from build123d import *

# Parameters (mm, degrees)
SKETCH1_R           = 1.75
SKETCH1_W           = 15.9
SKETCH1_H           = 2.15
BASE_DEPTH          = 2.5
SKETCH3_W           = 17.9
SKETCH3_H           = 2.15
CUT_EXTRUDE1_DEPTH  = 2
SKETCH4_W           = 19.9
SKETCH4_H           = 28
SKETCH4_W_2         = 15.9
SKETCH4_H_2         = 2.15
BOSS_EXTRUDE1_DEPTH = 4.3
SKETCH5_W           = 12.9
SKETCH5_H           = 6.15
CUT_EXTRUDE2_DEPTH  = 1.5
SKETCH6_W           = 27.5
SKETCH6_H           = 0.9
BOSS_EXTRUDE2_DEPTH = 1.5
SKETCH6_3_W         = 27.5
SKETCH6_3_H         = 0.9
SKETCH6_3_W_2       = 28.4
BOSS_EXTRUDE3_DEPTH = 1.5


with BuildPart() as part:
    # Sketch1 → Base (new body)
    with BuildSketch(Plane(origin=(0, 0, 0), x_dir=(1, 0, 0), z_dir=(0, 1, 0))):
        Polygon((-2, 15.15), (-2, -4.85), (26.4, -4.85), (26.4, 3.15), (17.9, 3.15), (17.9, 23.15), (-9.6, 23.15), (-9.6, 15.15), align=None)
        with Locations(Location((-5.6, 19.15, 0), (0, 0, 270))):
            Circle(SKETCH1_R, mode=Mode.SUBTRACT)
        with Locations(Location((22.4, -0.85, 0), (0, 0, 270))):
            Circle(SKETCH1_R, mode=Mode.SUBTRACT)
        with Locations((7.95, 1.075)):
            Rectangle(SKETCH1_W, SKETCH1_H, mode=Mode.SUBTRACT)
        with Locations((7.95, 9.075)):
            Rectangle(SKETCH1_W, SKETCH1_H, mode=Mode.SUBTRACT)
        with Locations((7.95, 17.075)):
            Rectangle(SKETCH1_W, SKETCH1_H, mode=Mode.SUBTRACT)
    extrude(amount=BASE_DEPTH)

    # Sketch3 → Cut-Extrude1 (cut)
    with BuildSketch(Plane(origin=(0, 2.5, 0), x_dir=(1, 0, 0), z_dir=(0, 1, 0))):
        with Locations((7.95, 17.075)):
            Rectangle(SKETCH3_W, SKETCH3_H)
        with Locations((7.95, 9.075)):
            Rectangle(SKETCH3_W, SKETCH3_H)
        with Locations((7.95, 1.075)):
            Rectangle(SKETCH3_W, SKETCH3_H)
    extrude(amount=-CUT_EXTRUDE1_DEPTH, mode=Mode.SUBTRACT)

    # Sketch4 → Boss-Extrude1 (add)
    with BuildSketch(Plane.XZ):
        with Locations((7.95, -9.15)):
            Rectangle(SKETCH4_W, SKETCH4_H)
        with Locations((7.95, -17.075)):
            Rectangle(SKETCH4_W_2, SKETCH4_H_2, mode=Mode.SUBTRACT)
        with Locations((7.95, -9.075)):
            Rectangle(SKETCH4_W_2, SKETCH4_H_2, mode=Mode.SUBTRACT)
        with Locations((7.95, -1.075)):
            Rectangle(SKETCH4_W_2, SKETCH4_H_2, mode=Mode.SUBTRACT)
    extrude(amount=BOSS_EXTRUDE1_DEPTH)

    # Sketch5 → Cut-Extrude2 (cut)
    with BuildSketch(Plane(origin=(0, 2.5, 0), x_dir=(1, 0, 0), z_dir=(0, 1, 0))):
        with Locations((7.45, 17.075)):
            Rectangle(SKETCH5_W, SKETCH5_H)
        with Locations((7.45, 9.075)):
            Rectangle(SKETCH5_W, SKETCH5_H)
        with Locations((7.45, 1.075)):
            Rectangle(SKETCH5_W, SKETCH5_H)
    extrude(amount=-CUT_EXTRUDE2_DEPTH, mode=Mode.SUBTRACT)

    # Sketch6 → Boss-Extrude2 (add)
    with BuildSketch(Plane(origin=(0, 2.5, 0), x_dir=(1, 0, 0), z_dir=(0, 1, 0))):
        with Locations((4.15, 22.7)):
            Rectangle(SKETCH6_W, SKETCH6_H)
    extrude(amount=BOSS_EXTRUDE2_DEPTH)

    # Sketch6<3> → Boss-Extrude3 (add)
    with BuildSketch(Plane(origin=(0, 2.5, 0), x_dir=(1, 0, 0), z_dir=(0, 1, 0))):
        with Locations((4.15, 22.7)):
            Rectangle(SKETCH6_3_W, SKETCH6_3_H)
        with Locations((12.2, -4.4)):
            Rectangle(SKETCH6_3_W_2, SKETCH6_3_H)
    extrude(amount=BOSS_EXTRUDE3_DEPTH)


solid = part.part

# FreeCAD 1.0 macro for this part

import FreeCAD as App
import Part
import Sketcher
Q = App.Units.Quantity


def add_polygon(sketch, points):
    """Adds a closed chain of lines whose ends are joined by coincident constraints."""
    first, n = sketch.GeometryCount, len(points)
    for a, b in zip(points, points[1:] + points[:1]):
        sketch.addGeometry(Part.LineSegment(App.Vector(*a, 0), App.Vector(*b, 0)), False)
    for i in range(n):
        sketch.addConstraint(Sketcher.Constraint("Coincident", first + i, 2, first + (i + 1) % n, 1))

doc = App.newDocument("Part")
params = doc.addObject("Spreadsheet::Sheet", "Params")
for row, (alias, value) in enumerate([
    ("sketch1_diameter", "3.5 mm"),
    ("sketch1_height", "20 mm"),
    ("sketch1_height2", "8 mm"),
    ("sketch1_width", "28.4 mm"),
    ("sketch1_width2", "8.5 mm"),
    ("pad1_length", "2.5 mm"),
    ("sketch2_width", "17.9 mm"),
    ("sketch2_height", "2.15 mm"),
    ("pocket1_length", "2 mm"),
    ("sketch3_height", "28 mm"),
    ("sketch3_width", "19.9 mm"),
    ("sketch3_width2", "15.9 mm"),
    ("sketch3_height2", "2.15 mm"),
    ("pad2_length", "4.3 mm"),
    ("sketch4_width", "12.9 mm"),
    ("sketch4_height", "6.15 mm"),
    ("pocket2_length", "1.5 mm"),
    ("sketch5_width", "27.5 mm"),
    ("sketch5_height", "0.9 mm"),
    ("pad3_length", "1.5 mm"),
    ("sketch6_width", "27.5 mm"),
    ("sketch6_width2", "28.4 mm"),
    ("sketch6_height", "0.9 mm"),
    ("pad4_length", "1.5 mm"),
], start=1):
    params.set(f"A{row}", alias)
    params.set(f"B{row}", "=" + value)
    params.setAlias(f"B{row}", alias)

body = doc.addObject("PartDesign::Body", "Body")

# Sketch on XZ plane
sketch1 = doc.addObject("Sketcher::SketchObject", "Sketch")
body.addObject(sketch1)
sketch1.AttachmentSupport = (doc.XZ_Plane, [""])
sketch1.MapMode = "FlatFace"
add_polygon(sketch1, [(-2, -15.15), (-2, 4.85), (26.4, 4.85), (26.4, -3.15), (17.9, -3.15), (17.9, -23.15), (-9.6, -23.15), (-9.6, -15.15)])  # lines 0-7
add_polygon(sketch1, [(15.9, 0), (0, 0), (0, -2.15), (15.9, -2.15)])  # lines 8-11
add_polygon(sketch1, [(15.9, -8), (0, -8), (0, -10.15), (15.9, -10.15)])  # lines 12-15
sketch1.addGeometry(Part.Circle(App.Vector(22.4, 0.85, 0), App.Vector(0, 0, 1), 1.75), False)  # 16
sketch1.addGeometry(Part.Circle(App.Vector(-5.6, -19.15, 0), App.Vector(0, 0, 1), 1.75), False)  # 17
add_polygon(sketch1, [(15.9, -16), (0, -16), (0, -18.15), (15.9, -18.15)])  # lines 18-21
sketch1.addConstraint([
    Sketcher.Constraint("Vertical", 0),
    Sketcher.Constraint("Horizontal", 1),
    Sketcher.Constraint("Vertical", 2),
    Sketcher.Constraint("Horizontal", 3),
    Sketcher.Constraint("Vertical", 4),
    Sketcher.Constraint("Horizontal", 5),
    Sketcher.Constraint("Vertical", 6),
    Sketcher.Constraint("Horizontal", 7),
    Sketcher.Constraint("Horizontal", 8),
    Sketcher.Constraint("Vertical", 9),
    Sketcher.Constraint("Horizontal", 10),
    Sketcher.Constraint("Vertical", 11),
    Sketcher.Constraint("Horizontal", 12),
    Sketcher.Constraint("Vertical", 13),
    Sketcher.Constraint("Horizontal", 14),
    Sketcher.Constraint("Vertical", 15),
    Sketcher.Constraint("Horizontal", 18),
    Sketcher.Constraint("Vertical", 19),
    Sketcher.Constraint("Horizontal", 20),
    Sketcher.Constraint("Vertical", 21),
    Sketcher.Constraint("Coincident", 8, 2, -1, 1),
    Sketcher.Constraint("Equal", 16, 17),
    Sketcher.Constraint("PointOnObject", 12, 2, -2),
    Sketcher.Constraint("PointOnObject", 18, 2, -2),
    Sketcher.Constraint("Vertical", 11, 2, 14, 2),
    Sketcher.Constraint("Vertical", 15, 2, 20, 2),
    Sketcher.Constraint("Equal", 0, 4),
    Sketcher.Constraint("Equal", 11, 13),
    Sketcher.Constraint("Equal", 15, 19),
    Sketcher.Constraint("Diameter", 16, Q("3.5 mm")),
    Sketcher.Constraint("DistanceY", 0, 1, 0, 2, Q("20 mm")),
    Sketcher.Constraint("DistanceY", 2, 2, 2, 1, Q("8 mm")),
    Sketcher.Constraint("DistanceX", 1, 1, 1, 2, Q("28.4 mm")),
    Sketcher.Constraint("DistanceX", 3, 2, 3, 1, Q("8.5 mm")),
    Sketcher.Constraint("DistanceX", 5, 2, 5, 1, Q("27.5 mm")),
    Sketcher.Constraint("DistanceX", 8, 2, 8, 1, Q("15.9 mm")),
    Sketcher.Constraint("DistanceX", 0, 2, -1, 1, Q("2 mm")),
    Sketcher.Constraint("DistanceY", 12, 2, -1, 1, Q("8 mm")),
    Sketcher.Constraint("DistanceY", 18, 2, -1, 1, Q("16 mm")),
    Sketcher.Constraint("DistanceX", 17, 3, 16, 3, Q("28 mm")),
    Sketcher.Constraint("DistanceY", 17, 3, 16, 3, Q("20 mm")),
    Sketcher.Constraint("DistanceY", 17, 3, 0, 2, Q("24 mm")),
    Sketcher.Constraint("DistanceX", 16, 3, 1, 2, Q("4 mm")),
    Sketcher.Constraint("DistanceY", 9, 2, 0, 2, Q("7 mm")),
    Sketcher.Constraint("DistanceY", 9, 2, 9, 1, Q("2.15 mm")),
])
sketch1.setExpression("Constraints[49]", "Params.sketch1_diameter")
sketch1.setExpression("Constraints[50]", "Params.sketch1_height")
sketch1.setExpression("Constraints[51]", "Params.sketch1_height2")
sketch1.setExpression("Constraints[52]", "Params.sketch1_width")
sketch1.setExpression("Constraints[53]", "Params.sketch1_width2")
pad1 = doc.addObject("PartDesign::Pad", "Pad")
body.addObject(pad1)
pad1.Profile = sketch1
pad1.setExpression("Length", "Params.pad1_length")
pad1.Reversed = True

# Sketch on XZ plane
sketch2 = doc.addObject("Sketcher::SketchObject", "Sketch001")
body.addObject(sketch2)
sketch2.AttachmentSupport = (doc.XZ_Plane, [""])
sketch2.MapMode = "FlatFace"
sketch2.AttachmentOffset = App.Placement(App.Vector(0, 0, -2.5), App.Rotation())
add_polygon(sketch2, [(-1, -18.15), (-1, -16), (16.9, -16), (16.9, -18.15)])  # lines 0-3
add_polygon(sketch2, [(-1, -10.15), (-1, -8), (16.9, -8), (16.9, -10.15)])  # lines 4-7
add_polygon(sketch2, [(-1, -2.15), (-1, 0), (16.9, 0), (16.9, -2.15)])  # lines 8-11
sketch2.addConstraint([
    Sketcher.Constraint("Vertical", 0),
    Sketcher.Constraint("Horizontal", 1),
    Sketcher.Constraint("Vertical", 2),
    Sketcher.Constraint("Horizontal", 3),
    Sketcher.Constraint("Vertical", 4),
    Sketcher.Constraint("Horizontal", 5),
    Sketcher.Constraint("Vertical", 6),
    Sketcher.Constraint("Horizontal", 7),
    Sketcher.Constraint("Vertical", 8),
    Sketcher.Constraint("Horizontal", 9),
    Sketcher.Constraint("Vertical", 10),
    Sketcher.Constraint("Horizontal", 11),
    Sketcher.Constraint("PointOnObject", 8, 2, -1),
    Sketcher.Constraint("Vertical", 3, 2, 4, 2),
    Sketcher.Constraint("Vertical", 2, 2, 5, 2),
    Sketcher.Constraint("Vertical", 7, 2, 8, 2),
    Sketcher.Constraint("Vertical", 6, 2, 9, 2),
    Sketcher.Constraint("Equal", 2, 4),
    Sketcher.Constraint("Equal", 6, 8),
    Sketcher.Constraint("DistanceX", 1, 1, 1, 2, Q("17.9 mm")),
    Sketcher.Constraint("DistanceX", 0, 2, -1, 1, Q("1 mm")),
    Sketcher.Constraint("DistanceY", 0, 2, -1, 1, Q("16 mm")),
    Sketcher.Constraint("DistanceY", 4, 2, -1, 1, Q("8 mm")),
    Sketcher.Constraint("DistanceY", 0, 1, 0, 2, Q("2.15 mm")),
])
sketch2.setExpression("Constraints[31]", "Params.sketch2_width")
sketch2.setExpression("Constraints[35]", "Params.sketch2_height")
pocket1 = doc.addObject("PartDesign::Pocket", "Pocket")
body.addObject(pocket1)
pocket1.Profile = sketch2
pocket1.setExpression("Length", "Params.pocket1_length")
pocket1.Reversed = True

# Sketch on XZ plane
sketch3 = doc.addObject("Sketcher::SketchObject", "Sketch002")
body.addObject(sketch3)
sketch3.AttachmentSupport = (doc.XZ_Plane, [""])
sketch3.MapMode = "FlatFace"
add_polygon(sketch3, [(-2, 4.85), (-2, -23.15), (17.9, -23.15), (17.9, 4.85)])  # lines 0-3
add_polygon(sketch3, [(15.9, -18.15), (0, -18.15), (0, -16), (15.9, -16)])  # lines 4-7
add_polygon(sketch3, [(15.9, -10.15), (0, -10.15), (0, -8), (15.9, -8)])  # lines 8-11
add_polygon(sketch3, [(15.9, -2.15), (0, -2.15), (0, 0), (15.9, 0)])  # lines 12-15
sketch3.addConstraint([
    Sketcher.Constraint("Vertical", 0),
    Sketcher.Constraint("Horizontal", 1),
    Sketcher.Constraint("Vertical", 2),
    Sketcher.Constraint("Horizontal", 3),
    Sketcher.Constraint("Horizontal", 4),
    Sketcher.Constraint("Vertical", 5),
    Sketcher.Constraint("Horizontal", 6),
    Sketcher.Constraint("Vertical", 7),
    Sketcher.Constraint("Horizontal", 8),
    Sketcher.Constraint("Vertical", 9),
    Sketcher.Constraint("Horizontal", 10),
    Sketcher.Constraint("Vertical", 11),
    Sketcher.Constraint("Horizontal", 12),
    Sketcher.Constraint("Vertical", 13),
    Sketcher.Constraint("Horizontal", 14),
    Sketcher.Constraint("Vertical", 15),
    Sketcher.Constraint("Coincident", 13, 2, -1, 1),
    Sketcher.Constraint("PointOnObject", 4, 2, -2),
    Sketcher.Constraint("PointOnObject", 8, 2, -2),
    Sketcher.Constraint("Vertical", 7, 2, 10, 2),
    Sketcher.Constraint("Vertical", 11, 2, 14, 2),
    Sketcher.Constraint("Equal", 7, 9),
    Sketcher.Constraint("Equal", 11, 13),
    Sketcher.Constraint("DistanceY", 0, 2, 0, 1, Q("28 mm")),
    Sketcher.Constraint("DistanceX", 1, 1, 1, 2, Q("19.9 mm")),
    Sketcher.Constraint("DistanceX", 4, 2, 4, 1, Q("15.9 mm")),
    Sketcher.Constraint("DistanceX", 0, 2, -1, 1, Q("2 mm")),
    Sketcher.Constraint("DistanceY", 5, 2, -1, 1, Q("16 mm")),
    Sketcher.Constraint("DistanceY", 9, 2, -1, 1, Q("8 mm")),
    Sketcher.Constraint("DistanceY", 0, 2, 4, 2, Q("5 mm")),
    Sketcher.Constraint("DistanceY", 5, 1, 5, 2, Q("2.15 mm")),
])
sketch3.setExpression("Constraints[39]", "Params.sketch3_height")
sketch3.setExpression("Constraints[40]", "Params.sketch3_width")
sketch3.setExpression("Constraints[41]", "Params.sketch3_width2")
sketch3.setExpression("Constraints[46]", "Params.sketch3_height2")
pad2 = doc.addObject("PartDesign::Pad", "Pad001")
body.addObject(pad2)
pad2.Profile = sketch3
pad2.setExpression("Length", "Params.pad2_length")

# Sketch on XZ plane
sketch4 = doc.addObject("Sketcher::SketchObject", "Sketch003")
body.addObject(sketch4)
sketch4.AttachmentSupport = (doc.XZ_Plane, [""])
sketch4.MapMode = "FlatFace"
sketch4.AttachmentOffset = App.Placement(App.Vector(0, 0, -2.5), App.Rotation())
add_polygon(sketch4, [(1, -20.15), (1, -14), (13.9, -14), (13.9, -20.15)])  # lines 0-3
add_polygon(sketch4, [(1, -12.15), (1, -6), (13.9, -6), (13.9, -12.15)])  # lines 4-7
add_polygon(sketch4, [(1, -4.15), (1, 2), (13.9, 2), (13.9, -4.15)])  # lines 8-11
sketch4.addConstraint([
    Sketcher.Constraint("Vertical", 0),
    Sketcher.Constraint("Horizontal", 1),
    Sketcher.Constraint("Vertical", 2),
    Sketcher.Constraint("Horizontal", 3),
    Sketcher.Constraint("Vertical", 4),
    Sketcher.Constraint("Horizontal", 5),
    Sketcher.Constraint("Vertical", 6),
    Sketcher.Constraint("Horizontal", 7),
    Sketcher.Constraint("Vertical", 8),
    Sketcher.Constraint("Horizontal", 9),
    Sketcher.Constraint("Vertical", 10),
    Sketcher.Constraint("Horizontal", 11),
    Sketcher.Constraint("Vertical", 3, 2, 4, 2),
    Sketcher.Constraint("Vertical", 2, 2, 5, 2),
    Sketcher.Constraint("Vertical", 7, 2, 8, 2),
    Sketcher.Constraint("Vertical", 6, 2, 9, 2),
    Sketcher.Constraint("Equal", 2, 4),
    Sketcher.Constraint("Equal", 6, 8),
    Sketcher.Constraint("DistanceX", 1, 1, 1, 2, Q("12.9 mm")),
    Sketcher.Constraint("DistanceX", -1, 1, 0, 2, Q("1 mm")),
    Sketcher.Constraint("DistanceY", 0, 2, -1, 1, Q("14 mm")),
    Sketcher.Constraint("DistanceY", 4, 2, -1, 1, Q("6 mm")),
    Sketcher.Constraint("DistanceY", -1, 1, 8, 2, Q("2 mm")),
    Sketcher.Constraint("DistanceY", 0, 1, 0, 2, Q("6.15 mm")),
])
sketch4.setExpression("Constraints[30]", "Params.sketch4_width")
sketch4.setExpression("Constraints[35]", "Params.sketch4_height")
pocket2 = doc.addObject("PartDesign::Pocket", "Pocket001")
body.addObject(pocket2)
pocket2.Profile = sketch4
pocket2.setExpression("Length", "Params.pocket2_length")
pocket2.Reversed = True

# Sketch on XZ plane
sketch5 = doc.addObject("Sketcher::SketchObject", "Sketch004")
body.addObject(sketch5)
sketch5.AttachmentSupport = (doc.XZ_Plane, [""])
sketch5.MapMode = "FlatFace"
sketch5.AttachmentOffset = App.Placement(App.Vector(0, 0, -2.5), App.Rotation())
add_polygon(sketch5, [(-9.6, -23.15), (-9.6, -22.25), (17.9, -22.25), (17.9, -23.15)])  # lines 0-3
sketch5.addConstraint([
    Sketcher.Constraint("Vertical", 0),
    Sketcher.Constraint("Horizontal", 1),
    Sketcher.Constraint("Vertical", 2),
    Sketcher.Constraint("Horizontal", 3),
    Sketcher.Constraint("DistanceX", 1, 1, 1, 2, Q("27.5 mm")),
    Sketcher.Constraint("DistanceY", 0, 1, 0, 2, Q("0.9 mm")),
    Sketcher.Constraint("DistanceX", 0, 2, -1, 1, Q("9.6 mm")),
    Sketcher.Constraint("DistanceY", 0, 2, -1, 1, Q("22.25 mm")),
])
sketch5.setExpression("Constraints[8]", "Params.sketch5_width")
sketch5.setExpression("Constraints[9]", "Params.sketch5_height")
pad3 = doc.addObject("PartDesign::Pad", "Pad002")
body.addObject(pad3)
pad3.Profile = sketch5
pad3.setExpression("Length", "Params.pad3_length")
pad3.Reversed = True

# Sketch on XZ plane
sketch6 = doc.addObject("Sketcher::SketchObject", "Sketch005")
body.addObject(sketch6)
sketch6.AttachmentSupport = (doc.XZ_Plane, [""])
sketch6.MapMode = "FlatFace"
sketch6.AttachmentOffset = App.Placement(App.Vector(0, 0, -2.5), App.Rotation())
add_polygon(sketch6, [(-9.6, -23.15), (-9.6, -22.25), (17.9, -22.25), (17.9, -23.15)])  # lines 0-3
add_polygon(sketch6, [(-2, 3.95), (-2, 4.85), (26.4, 4.85), (26.4, 3.95)])  # lines 4-7
sketch6.addConstraint([
    Sketcher.Constraint("Vertical", 0),
    Sketcher.Constraint("Horizontal", 1),
    Sketcher.Constraint("Vertical", 2),
    Sketcher.Constraint("Horizontal", 3),
    Sketcher.Constraint("Vertical", 4),
    Sketcher.Constraint("Horizontal", 5),
    Sketcher.Constraint("Vertical", 6),
    Sketcher.Constraint("Horizontal", 7),
    Sketcher.Constraint("Equal", 2, 4),
    Sketcher.Constraint("DistanceX", 1, 1, 1, 2, Q("27.5 mm")),
    Sketcher.Constraint("DistanceX", 5, 1, 5, 2, Q("28.4 mm")),
    Sketcher.Constraint("DistanceY", 0, 1, 0, 2, Q("0.9 mm")),
    Sketcher.Constraint("DistanceX", 4, 2, -1, 1, Q("2 mm")),
    Sketcher.Constraint("DistanceY", 3, 2, 4, 2, Q("28 mm")),
    Sketcher.Constraint("DistanceX", 0, 2, 5, 2, Q("36 mm")),
    Sketcher.Constraint("DistanceY", 0, 2, -1, 1, Q("22.25 mm")),
])
sketch6.setExpression("Constraints[17]", "Params.sketch6_width")
sketch6.setExpression("Constraints[18]", "Params.sketch6_width2")
sketch6.setExpression("Constraints[19]", "Params.sketch6_height")
pad4 = doc.addObject("PartDesign::Pad", "Pad003")
body.addObject(pad4)
pad4.Profile = sketch6
pad4.setExpression("Length", "Params.pad4_length")
pad4.Reversed = True

doc.recompute()
